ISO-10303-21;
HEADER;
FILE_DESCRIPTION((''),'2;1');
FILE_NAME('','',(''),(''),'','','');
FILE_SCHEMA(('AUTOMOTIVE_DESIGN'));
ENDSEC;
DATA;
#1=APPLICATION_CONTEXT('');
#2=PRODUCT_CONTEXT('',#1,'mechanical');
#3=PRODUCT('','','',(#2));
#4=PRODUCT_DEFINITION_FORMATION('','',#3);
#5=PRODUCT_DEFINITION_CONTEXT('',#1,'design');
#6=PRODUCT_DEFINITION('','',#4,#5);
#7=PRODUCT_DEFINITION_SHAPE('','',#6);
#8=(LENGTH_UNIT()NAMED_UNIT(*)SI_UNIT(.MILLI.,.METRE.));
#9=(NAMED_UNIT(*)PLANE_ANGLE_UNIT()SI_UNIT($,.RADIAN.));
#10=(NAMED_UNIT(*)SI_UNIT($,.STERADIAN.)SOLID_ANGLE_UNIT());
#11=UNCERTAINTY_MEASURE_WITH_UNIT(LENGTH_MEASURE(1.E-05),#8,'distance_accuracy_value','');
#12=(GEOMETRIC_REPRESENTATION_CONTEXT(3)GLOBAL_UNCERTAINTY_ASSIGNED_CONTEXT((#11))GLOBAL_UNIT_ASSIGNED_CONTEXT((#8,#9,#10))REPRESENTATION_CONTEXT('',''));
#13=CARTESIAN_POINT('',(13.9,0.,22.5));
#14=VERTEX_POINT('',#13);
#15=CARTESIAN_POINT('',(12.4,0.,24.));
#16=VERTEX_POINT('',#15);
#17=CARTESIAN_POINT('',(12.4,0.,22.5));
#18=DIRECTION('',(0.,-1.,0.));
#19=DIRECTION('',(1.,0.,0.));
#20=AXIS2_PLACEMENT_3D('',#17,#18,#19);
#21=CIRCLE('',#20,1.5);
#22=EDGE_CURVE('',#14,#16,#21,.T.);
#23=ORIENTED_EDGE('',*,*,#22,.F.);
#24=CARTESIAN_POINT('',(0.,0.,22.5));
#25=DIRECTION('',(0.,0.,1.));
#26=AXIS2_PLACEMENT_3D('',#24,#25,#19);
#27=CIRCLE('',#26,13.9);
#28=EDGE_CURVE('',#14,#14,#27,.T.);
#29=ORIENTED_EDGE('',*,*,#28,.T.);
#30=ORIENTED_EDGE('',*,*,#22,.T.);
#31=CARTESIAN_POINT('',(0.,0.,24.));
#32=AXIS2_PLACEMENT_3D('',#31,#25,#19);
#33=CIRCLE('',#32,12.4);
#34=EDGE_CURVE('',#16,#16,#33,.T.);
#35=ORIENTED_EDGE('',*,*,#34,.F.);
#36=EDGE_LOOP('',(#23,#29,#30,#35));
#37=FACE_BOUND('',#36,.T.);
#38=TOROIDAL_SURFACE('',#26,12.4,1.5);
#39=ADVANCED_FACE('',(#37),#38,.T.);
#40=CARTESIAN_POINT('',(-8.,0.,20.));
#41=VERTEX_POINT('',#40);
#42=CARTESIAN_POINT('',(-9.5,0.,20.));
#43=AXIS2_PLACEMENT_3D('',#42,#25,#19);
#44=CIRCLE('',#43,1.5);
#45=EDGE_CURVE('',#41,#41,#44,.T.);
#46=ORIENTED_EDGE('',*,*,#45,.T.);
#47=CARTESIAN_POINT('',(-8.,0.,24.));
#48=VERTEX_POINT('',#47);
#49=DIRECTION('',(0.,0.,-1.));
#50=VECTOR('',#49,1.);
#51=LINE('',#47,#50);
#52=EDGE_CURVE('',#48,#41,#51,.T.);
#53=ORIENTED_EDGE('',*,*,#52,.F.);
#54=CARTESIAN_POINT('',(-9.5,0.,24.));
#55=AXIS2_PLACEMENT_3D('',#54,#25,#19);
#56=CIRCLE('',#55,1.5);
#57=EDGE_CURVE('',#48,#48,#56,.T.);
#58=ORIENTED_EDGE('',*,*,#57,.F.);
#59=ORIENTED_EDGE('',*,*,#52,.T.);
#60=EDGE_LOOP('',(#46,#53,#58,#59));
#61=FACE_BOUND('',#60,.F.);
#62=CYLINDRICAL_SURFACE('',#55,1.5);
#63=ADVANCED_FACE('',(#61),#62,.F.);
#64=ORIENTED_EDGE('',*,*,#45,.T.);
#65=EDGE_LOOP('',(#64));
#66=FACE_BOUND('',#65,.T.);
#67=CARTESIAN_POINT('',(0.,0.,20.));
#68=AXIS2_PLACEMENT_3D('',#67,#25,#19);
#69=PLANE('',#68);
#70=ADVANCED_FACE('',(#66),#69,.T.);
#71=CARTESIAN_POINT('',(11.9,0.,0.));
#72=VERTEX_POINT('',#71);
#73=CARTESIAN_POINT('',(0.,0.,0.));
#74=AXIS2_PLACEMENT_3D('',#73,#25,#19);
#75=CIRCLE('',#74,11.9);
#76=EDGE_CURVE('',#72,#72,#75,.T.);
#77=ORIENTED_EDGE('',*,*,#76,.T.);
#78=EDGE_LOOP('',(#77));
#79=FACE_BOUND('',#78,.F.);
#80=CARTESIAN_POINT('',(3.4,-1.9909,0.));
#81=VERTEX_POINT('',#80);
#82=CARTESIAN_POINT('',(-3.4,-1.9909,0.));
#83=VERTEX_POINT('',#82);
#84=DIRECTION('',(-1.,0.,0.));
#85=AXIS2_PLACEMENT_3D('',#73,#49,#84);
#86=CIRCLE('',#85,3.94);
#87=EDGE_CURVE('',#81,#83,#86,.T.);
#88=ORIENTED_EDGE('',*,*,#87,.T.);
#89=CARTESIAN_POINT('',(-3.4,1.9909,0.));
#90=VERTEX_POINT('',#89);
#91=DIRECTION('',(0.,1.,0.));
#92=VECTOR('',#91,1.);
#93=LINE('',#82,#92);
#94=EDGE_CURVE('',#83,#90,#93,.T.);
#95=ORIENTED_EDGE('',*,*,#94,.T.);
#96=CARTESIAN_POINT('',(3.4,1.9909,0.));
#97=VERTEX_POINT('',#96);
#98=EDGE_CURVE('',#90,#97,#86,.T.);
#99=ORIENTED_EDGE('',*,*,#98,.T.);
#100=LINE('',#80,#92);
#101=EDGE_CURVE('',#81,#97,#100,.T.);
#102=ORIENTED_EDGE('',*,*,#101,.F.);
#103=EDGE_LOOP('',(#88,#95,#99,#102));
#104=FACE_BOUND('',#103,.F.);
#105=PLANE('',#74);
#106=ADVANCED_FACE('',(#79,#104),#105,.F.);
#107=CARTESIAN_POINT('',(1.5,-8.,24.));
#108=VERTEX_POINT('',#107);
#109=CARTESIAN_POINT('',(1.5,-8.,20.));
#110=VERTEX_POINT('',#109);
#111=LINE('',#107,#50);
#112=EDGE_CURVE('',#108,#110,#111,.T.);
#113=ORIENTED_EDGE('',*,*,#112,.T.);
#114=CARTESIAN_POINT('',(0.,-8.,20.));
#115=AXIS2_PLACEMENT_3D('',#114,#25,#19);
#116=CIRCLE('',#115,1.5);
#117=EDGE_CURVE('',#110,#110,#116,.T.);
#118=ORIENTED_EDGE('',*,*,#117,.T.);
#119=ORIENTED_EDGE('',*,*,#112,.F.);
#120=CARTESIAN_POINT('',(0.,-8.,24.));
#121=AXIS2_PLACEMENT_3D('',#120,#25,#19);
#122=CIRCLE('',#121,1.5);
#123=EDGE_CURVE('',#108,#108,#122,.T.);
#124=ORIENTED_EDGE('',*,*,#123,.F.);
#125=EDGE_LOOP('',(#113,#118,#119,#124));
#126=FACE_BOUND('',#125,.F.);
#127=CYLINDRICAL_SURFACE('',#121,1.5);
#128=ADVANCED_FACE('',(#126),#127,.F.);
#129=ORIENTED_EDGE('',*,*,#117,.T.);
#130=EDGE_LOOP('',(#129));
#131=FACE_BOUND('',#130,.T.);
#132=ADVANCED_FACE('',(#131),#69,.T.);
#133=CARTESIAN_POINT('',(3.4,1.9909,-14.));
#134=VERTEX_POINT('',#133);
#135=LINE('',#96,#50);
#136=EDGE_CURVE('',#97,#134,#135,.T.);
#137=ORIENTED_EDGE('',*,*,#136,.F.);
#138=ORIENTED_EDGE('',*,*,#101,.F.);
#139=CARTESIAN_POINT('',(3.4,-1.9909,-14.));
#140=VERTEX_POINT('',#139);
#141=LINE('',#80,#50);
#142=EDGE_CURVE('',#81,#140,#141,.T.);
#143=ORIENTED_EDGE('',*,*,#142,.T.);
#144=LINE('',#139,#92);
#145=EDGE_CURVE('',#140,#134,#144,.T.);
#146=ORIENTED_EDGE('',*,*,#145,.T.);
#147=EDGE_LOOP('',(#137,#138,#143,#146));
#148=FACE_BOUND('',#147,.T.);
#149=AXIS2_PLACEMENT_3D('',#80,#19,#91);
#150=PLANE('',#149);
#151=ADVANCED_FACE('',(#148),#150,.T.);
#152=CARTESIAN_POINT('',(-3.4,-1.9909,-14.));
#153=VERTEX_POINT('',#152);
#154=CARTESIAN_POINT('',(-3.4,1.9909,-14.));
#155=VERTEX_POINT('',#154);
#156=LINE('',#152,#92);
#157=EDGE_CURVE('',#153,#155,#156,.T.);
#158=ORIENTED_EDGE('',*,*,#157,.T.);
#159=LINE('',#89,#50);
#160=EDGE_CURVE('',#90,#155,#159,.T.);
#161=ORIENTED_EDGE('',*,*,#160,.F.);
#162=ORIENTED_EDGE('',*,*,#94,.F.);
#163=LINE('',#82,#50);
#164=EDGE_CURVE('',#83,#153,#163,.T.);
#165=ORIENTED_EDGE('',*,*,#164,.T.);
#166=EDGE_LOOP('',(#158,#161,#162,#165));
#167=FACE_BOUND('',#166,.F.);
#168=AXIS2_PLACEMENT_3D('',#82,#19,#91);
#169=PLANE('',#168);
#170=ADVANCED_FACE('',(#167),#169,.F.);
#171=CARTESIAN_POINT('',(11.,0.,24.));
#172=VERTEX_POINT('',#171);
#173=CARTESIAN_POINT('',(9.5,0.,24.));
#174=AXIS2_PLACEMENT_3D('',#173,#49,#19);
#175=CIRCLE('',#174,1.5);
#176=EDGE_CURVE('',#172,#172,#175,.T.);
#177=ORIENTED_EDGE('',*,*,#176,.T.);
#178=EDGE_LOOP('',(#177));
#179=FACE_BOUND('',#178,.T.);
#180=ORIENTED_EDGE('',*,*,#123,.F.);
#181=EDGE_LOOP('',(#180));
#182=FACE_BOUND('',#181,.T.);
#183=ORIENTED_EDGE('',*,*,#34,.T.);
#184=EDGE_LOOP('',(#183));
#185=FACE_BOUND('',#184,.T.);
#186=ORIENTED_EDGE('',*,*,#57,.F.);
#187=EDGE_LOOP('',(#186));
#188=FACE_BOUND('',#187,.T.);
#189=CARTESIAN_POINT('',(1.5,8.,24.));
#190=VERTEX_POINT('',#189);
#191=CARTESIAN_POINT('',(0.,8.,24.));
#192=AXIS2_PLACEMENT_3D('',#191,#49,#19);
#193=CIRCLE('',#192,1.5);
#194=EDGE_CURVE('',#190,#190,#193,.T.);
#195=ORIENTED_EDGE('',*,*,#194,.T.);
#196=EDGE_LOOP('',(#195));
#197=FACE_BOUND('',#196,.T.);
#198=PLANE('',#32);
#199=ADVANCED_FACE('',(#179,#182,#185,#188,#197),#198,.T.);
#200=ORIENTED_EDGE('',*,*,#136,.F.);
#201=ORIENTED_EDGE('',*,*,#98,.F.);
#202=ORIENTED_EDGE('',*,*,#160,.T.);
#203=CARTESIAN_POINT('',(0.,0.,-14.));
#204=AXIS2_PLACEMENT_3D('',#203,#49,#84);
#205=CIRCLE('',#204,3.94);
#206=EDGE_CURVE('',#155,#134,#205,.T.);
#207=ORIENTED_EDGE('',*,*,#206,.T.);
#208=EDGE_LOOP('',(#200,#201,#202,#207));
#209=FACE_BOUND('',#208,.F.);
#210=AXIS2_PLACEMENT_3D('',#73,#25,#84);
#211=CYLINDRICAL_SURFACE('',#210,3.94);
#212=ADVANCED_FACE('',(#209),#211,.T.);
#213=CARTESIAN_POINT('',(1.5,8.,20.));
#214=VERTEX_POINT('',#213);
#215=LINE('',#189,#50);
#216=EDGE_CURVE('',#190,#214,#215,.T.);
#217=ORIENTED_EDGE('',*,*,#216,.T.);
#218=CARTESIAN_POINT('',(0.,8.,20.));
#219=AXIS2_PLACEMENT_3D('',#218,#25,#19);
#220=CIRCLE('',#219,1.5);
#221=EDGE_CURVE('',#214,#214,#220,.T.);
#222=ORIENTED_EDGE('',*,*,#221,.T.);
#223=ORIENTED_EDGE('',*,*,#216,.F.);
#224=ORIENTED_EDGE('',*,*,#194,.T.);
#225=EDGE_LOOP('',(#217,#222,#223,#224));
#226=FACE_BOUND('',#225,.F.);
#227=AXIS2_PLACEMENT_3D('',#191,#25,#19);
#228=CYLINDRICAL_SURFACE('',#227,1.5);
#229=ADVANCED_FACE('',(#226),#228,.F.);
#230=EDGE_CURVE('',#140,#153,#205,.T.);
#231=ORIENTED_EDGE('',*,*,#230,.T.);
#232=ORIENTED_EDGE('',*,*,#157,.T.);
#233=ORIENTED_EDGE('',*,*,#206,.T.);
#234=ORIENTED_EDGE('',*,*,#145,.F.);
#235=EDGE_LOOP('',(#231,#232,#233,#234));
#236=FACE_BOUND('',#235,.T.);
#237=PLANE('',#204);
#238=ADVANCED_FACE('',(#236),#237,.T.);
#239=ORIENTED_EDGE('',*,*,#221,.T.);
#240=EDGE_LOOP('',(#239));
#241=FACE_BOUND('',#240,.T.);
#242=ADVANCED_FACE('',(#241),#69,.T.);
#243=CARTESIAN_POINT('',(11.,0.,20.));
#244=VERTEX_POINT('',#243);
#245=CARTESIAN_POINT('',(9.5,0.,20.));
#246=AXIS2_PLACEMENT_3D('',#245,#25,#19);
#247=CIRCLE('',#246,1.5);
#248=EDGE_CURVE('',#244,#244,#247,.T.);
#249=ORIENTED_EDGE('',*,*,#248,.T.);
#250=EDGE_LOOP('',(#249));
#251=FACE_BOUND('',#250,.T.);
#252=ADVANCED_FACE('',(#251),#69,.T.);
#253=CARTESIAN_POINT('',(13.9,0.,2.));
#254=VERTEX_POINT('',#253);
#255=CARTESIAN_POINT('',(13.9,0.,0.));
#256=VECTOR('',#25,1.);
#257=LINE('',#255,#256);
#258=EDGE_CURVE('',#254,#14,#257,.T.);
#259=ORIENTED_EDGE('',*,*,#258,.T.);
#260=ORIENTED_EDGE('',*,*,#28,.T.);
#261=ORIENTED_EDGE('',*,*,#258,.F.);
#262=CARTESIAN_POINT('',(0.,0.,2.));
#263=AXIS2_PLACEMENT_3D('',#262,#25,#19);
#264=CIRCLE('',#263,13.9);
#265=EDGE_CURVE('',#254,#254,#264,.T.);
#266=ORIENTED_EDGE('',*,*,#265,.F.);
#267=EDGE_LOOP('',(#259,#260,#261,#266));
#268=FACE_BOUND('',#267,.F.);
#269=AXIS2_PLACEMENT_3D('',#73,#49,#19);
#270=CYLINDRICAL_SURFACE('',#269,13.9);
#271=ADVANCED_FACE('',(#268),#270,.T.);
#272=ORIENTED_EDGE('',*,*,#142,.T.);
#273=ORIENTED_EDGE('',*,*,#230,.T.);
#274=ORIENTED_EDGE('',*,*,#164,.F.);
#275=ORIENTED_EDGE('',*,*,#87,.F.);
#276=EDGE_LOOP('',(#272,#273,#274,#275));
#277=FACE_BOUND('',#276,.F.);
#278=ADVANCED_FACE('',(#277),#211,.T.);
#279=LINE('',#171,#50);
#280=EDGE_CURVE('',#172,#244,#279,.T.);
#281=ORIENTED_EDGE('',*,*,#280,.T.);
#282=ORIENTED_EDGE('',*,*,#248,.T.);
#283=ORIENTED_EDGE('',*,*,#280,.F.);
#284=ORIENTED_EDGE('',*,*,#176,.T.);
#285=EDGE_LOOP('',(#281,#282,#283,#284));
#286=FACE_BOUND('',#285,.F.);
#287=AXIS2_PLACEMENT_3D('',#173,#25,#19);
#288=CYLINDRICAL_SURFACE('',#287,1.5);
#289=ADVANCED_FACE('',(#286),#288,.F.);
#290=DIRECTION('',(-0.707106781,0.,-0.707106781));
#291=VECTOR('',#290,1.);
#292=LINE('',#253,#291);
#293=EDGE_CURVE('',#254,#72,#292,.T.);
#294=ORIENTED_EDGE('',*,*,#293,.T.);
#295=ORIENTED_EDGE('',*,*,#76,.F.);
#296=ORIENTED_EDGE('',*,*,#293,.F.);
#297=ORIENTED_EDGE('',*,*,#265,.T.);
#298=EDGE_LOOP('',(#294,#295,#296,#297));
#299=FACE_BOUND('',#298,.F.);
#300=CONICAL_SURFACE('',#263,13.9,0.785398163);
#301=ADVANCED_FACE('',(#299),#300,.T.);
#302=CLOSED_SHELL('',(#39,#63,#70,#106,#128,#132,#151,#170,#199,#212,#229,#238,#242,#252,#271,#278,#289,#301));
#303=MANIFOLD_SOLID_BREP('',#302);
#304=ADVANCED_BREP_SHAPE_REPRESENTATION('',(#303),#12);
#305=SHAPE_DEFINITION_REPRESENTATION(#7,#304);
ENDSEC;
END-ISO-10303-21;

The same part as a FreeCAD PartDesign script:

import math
import FreeCAD as App
import Part
import Sketcher
Q = App.Units.Quantity


def edges_at(feature, points):
    """Names of the edges that pass closest to the given points."""
    edges = feature.Shape.Edges
    near = lambda p: min(range(len(edges)), key=lambda i: edges[i].distToShape(Part.Vertex(*p))[0])
    return sorted({f"Edge{near(p) + 1}" for p in points})

doc = App.newDocument("Part")
body = doc.addObject("PartDesign::Body", "Body")

# Sketch on XY plane
sketch1 = body.newObject("Sketcher::SketchObject", "Sketch")
sketch1.AttachmentSupport = (doc.getObject("XY_Plane"), [""])
sketch1.MapMode = "FlatFace"
sketch1.addGeometry(Part.Circle(App.Vector(0, 0, 0), App.Vector(0, 0, 1), 14), False)
sketch1.addConstraint(Sketcher.Constraint("Coincident", 0, 3, -1, 1))
sketch1.addConstraint(Sketcher.Constraint("Diameter", 0, Q("27.8 mm")))
pad1 = body.newObject("PartDesign::Pad", "Pad")
pad1.Profile = sketch1
pad1.Length = 24
doc.recompute()

fillet = body.newObject("PartDesign::Fillet", "Fillet")
fillet.Base = (pad1, edges_at(pad1, [(-13.9, 0, 24)]))
fillet.Radius = 1.5
doc.recompute()

chamfer = body.newObject("PartDesign::Chamfer", "Chamfer")
chamfer.Base = (fillet, edges_at(fillet, [(-13.9, 0, 0)]))
chamfer.Size = 2

# Sketch on XY plane
sketch2 = body.newObject("Sketcher::SketchObject", "Sketch001")
sketch2.AttachmentSupport = (doc.getObject("XY_Plane"), [""])
sketch2.MapMode = "FlatFace"
sketch2.addGeometry(Part.LineSegment(App.Vector(-3.4, -2, 0), App.Vector(-3.4, 2, 0)), False)
sketch2.addGeometry(Part.ArcOfCircle(Part.Circle(App.Vector(0, 0, 0), App.Vector(0, 0, 1), 3.9), math.radians(30), math.radians(150)), False)
sketch2.addGeometry(Part.LineSegment(App.Vector(3.4, 2, 0), App.Vector(3.4, -2, 0)), False)
sketch2.addGeometry(Part.ArcOfCircle(Part.Circle(App.Vector(0, 0, 0), App.Vector(0, 0, 1), 3.9), math.radians(-150), math.radians(-30)), False)
sketch2.addConstraint(Sketcher.Constraint("Coincident", 0, 2, 1, 2))
sketch2.addConstraint(Sketcher.Constraint("Coincident", 1, 1, 2, 1))
sketch2.addConstraint(Sketcher.Constraint("Coincident", 2, 2, 3, 2))
sketch2.addConstraint(Sketcher.Constraint("Coincident", 3, 1, 0, 1))
sketch2.addConstraint(Sketcher.Constraint("Vertical", 0))
sketch2.addConstraint(Sketcher.Constraint("Vertical", 2))
sketch2.addConstraint(Sketcher.Constraint("Coincident", 1, 3, -1, 1))
sketch2.addConstraint(Sketcher.Constraint("Coincident", 3, 3, -1, 1))
sketch2.addConstraint(Sketcher.Constraint("Equal", 1, 3))
sketch2.addConstraint(Sketcher.Constraint("Horizontal", 0, 2, 1, 1))
sketch2.addConstraint(Sketcher.Constraint("Radius", 1, Q("3.94 mm")))
sketch2.addConstraint(Sketcher.Constraint("DistanceX", 0, 2, 1, 1, Q("6.8 mm")))
pad2 = body.newObject("PartDesign::Pad", "Pad001")
pad2.Profile = sketch2
pad2.Length = 14
pad2.Reversed = True

# Sketch on XY plane
sketch3 = body.newObject("Sketcher::SketchObject", "Sketch002")
sketch3.AttachmentSupport = (doc.getObject("XY_Plane"), [""])
sketch3.MapMode = "FlatFace"
sketch3.AttachmentOffset = App.Placement(App.Vector(0, 0, 24), App.Rotation())
sketch3.addGeometry(Part.Circle(App.Vector(0, 8, 0), App.Vector(0, 0, 1), 1.5), False)
sketch3.addGeometry(Part.Circle(App.Vector(9.5, 0, 0), App.Vector(0, 0, 1), 1.5), False)
sketch3.addGeometry(Part.Circle(App.Vector(-9.5, 0, 0), App.Vector(0, 0, 1), 1.5), False)
sketch3.addGeometry(Part.Circle(App.Vector(0, -8, 0), App.Vector(0, 0, 1), 1.5), False)
sketch3.addConstraint(Sketcher.Constraint("Equal", 0, 1))
sketch3.addConstraint(Sketcher.Constraint("Equal", 1, 2))
sketch3.addConstraint(Sketcher.Constraint("Equal", 2, 3))
sketch3.addConstraint(Sketcher.Constraint("Symmetric", 1, 3, 2, 3, -1, 1))
sketch3.addConstraint(Sketcher.Constraint("Symmetric", 0, 3, 3, 3, -1, 1))
sketch3.addConstraint(Sketcher.Constraint("PointOnObject", 0, 3, -2))
sketch3.addConstraint(Sketcher.Constraint("PointOnObject", 1, 3, -1))
sketch3.addConstraint(Sketcher.Constraint("Diameter", 0, Q("3 mm")))
sketch3.addConstraint(Sketcher.Constraint("DistanceY", -1, 1, 0, 3, Q("8 mm")))
sketch3.addConstraint(Sketcher.Constraint("DistanceX", -1, 1, 1, 3, Q("9.5 mm")))
pocket1 = body.newObject("PartDesign::Pocket", "Pocket")
pocket1.Profile = sketch3
pocket1.Length = 4

doc.recompute()
